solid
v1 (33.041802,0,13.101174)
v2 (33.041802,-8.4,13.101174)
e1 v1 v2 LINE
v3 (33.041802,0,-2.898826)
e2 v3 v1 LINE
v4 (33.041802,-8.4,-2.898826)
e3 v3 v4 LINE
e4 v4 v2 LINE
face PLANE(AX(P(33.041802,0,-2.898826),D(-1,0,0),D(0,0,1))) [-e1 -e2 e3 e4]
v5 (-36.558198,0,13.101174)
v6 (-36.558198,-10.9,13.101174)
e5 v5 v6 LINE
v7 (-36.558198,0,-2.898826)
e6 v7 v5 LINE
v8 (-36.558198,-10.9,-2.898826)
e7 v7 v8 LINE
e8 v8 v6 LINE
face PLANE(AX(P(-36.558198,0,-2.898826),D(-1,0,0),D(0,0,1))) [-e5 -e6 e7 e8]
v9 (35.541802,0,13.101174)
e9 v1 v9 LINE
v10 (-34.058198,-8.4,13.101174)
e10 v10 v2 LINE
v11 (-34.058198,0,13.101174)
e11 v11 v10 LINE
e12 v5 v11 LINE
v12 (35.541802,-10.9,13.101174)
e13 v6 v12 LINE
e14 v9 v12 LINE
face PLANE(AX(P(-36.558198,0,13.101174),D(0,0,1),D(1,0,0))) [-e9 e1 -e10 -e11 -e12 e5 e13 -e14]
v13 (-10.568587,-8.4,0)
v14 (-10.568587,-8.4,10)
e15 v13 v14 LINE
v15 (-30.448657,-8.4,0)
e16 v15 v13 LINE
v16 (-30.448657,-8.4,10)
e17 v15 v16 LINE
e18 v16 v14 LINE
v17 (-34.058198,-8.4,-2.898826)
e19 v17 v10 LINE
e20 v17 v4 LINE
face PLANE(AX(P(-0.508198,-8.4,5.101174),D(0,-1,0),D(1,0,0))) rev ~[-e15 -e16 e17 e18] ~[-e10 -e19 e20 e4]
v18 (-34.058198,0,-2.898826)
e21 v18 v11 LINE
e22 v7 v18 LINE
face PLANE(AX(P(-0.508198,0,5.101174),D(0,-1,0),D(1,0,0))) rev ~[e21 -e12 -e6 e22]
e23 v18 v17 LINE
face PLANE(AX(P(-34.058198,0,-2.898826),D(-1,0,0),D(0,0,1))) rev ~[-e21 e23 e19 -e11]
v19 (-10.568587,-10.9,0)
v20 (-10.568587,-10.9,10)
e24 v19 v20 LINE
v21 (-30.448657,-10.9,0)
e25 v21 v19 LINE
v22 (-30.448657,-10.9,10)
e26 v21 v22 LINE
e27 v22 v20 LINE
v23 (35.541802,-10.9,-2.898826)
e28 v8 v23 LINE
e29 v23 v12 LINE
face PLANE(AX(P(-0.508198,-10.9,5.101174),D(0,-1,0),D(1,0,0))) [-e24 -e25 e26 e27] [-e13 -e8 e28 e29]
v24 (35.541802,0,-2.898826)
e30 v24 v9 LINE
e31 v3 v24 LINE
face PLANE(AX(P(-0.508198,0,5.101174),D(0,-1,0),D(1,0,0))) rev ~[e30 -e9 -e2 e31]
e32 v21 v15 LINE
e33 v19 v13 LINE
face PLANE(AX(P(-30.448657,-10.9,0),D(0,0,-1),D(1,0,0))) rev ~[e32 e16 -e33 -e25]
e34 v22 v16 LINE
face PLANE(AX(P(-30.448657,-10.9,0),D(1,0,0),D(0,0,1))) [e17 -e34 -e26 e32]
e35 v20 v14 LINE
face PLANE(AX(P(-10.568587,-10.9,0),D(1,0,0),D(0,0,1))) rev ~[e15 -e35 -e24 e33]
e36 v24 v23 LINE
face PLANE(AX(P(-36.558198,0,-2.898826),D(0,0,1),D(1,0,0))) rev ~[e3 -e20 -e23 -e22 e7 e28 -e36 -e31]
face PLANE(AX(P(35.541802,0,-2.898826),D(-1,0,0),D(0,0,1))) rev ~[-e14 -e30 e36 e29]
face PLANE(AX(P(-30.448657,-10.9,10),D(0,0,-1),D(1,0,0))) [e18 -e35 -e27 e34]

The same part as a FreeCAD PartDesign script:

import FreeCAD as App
import Part
import Sketcher
from FreeCAD import Vector


def faces_at(feature, points):
    """Names of the faces that lie closest to the given points."""
    faces = feature.Shape.Faces
    near = lambda p: min(range(len(faces)), key=lambda i: faces[i].distToShape(Part.Vertex(*p))[0])
    return sorted({f"Face{near(p) + 1}" for p in points})

doc = App.newDocument("Part")
body = doc.addObject("PartDesign::Body", "Body")

sketch1 = doc.addObject("Sketcher::SketchObject", "Sketch")
body.addObject(sketch1)
sketch1.AttachmentSupport = (doc.XZ_Plane, [""])
sketch1.MapMode = "FlatFace"
sketch1.addGeometry([
    Part.LineSegment(Vector(-36.558198, 13.101174, 0), Vector(-36.558198, -2.898826, 0)),
    Part.LineSegment(Vector(-36.558198, -2.898826, 0), Vector(35.541802, -2.898826, 0)),
    Part.LineSegment(Vector(35.541802, -2.898826, 0), Vector(35.541802, 13.101174, 0)),
    Part.LineSegment(Vector(35.541802, 13.101174, 0), Vector(-36.558198, 13.101174, 0)),
], False)
sketch1.addConstraint([
    Sketcher.Constraint("Coincident", 0, 2, 1, 1),
    Sketcher.Constraint("Coincident", 1, 2, 2, 1),
    Sketcher.Constraint("Coincident", 2, 2, 3, 1),
    Sketcher.Constraint("Coincident", 3, 2, 0, 1),
    Sketcher.Constraint("Vertical", 0),
    Sketcher.Constraint("Horizontal", 1),
    Sketcher.Constraint("Vertical", 2),
    Sketcher.Constraint("Horizontal", 3),
    Sketcher.Constraint("DistanceY", 0, 2, 0, 1, 16.0),
    Sketcher.Constraint("DistanceX", 1, 1, 1, 2, 72.1),
    Sketcher.Constraint("DistanceX", -1, 1, 1, 2, 35.541802),
    Sketcher.Constraint("DistanceY", 0, 2, -1, 1, 2.898826),
])
pad1 = doc.addObject("PartDesign::Pad", "Pad")
body.addObject(pad1)
pad1.Profile = sketch1
pad1.Length = 10.9
doc.recompute()

thickness = doc.addObject("PartDesign::Thickness", "Thickness")
body.addObject(thickness)
thickness.Base = (pad1, faces_at(pad1, [(-0.508, 0, 5.101), (-0.508, -5.45, 13.101), (-0.508, -5.45, -2.899)]))
thickness.Value = 2.5
thickness.Reversed = True
thickness.Join = "Arc"

sketch2 = doc.addObject("Sketcher::SketchObject", "Sketch001")
body.addObject(sketch2)
sketch2.AttachmentSupport = (doc.XZ_Plane, [""])
sketch2.MapMode = "FlatFace"
sketch2.AttachmentOffset = App.Placement(Vector(0, 0, 10.9), App.Rotation())
sketch2.addGeometry([
    Part.LineSegment(Vector(-30.448657, 10, 0), Vector(-30.448657, 0, 0)),
    Part.LineSegment(Vector(-30.448657, 0, 0), Vector(-10.568587, 0, 0)),
    Part.LineSegment(Vector(-10.568587, 0, 0), Vector(-10.568587, 10, 0)),
    Part.LineSegment(Vector(-10.568587, 10, 0), Vector(-30.448657, 10, 0)),
], False)
sketch2.addConstraint([
    Sketcher.Constraint("Coincident", 0, 2, 1, 1),
    Sketcher.Constraint("Coincident", 1, 2, 2, 1),
    Sketcher.Constraint("Coincident", 2, 2, 3, 1),
    Sketcher.Constraint("Coincident", 3, 2, 0, 1),
    Sketcher.Constraint("Vertical", 0),
    Sketcher.Constraint("Horizontal", 1),
    Sketcher.Constraint("Vertical", 2),
    Sketcher.Constraint("Horizontal", 3),
    Sketcher.Constraint("PointOnObject", 0, 2, -1),
    Sketcher.Constraint("DistanceY", 0, 2, 0, 1, 10.0),
    Sketcher.Constraint("DistanceX", 1, 1, 1, 2, 19.88007),
    Sketcher.Constraint("DistanceX", 0, 2, -1, 1, 30.448657),
])
pocket1 = doc.addObject("PartDesign::Pocket", "Pocket")
body.addObject(pocket1)
pocket1.Profile = sketch2
pocket1.Length = 25

doc.recompute()
